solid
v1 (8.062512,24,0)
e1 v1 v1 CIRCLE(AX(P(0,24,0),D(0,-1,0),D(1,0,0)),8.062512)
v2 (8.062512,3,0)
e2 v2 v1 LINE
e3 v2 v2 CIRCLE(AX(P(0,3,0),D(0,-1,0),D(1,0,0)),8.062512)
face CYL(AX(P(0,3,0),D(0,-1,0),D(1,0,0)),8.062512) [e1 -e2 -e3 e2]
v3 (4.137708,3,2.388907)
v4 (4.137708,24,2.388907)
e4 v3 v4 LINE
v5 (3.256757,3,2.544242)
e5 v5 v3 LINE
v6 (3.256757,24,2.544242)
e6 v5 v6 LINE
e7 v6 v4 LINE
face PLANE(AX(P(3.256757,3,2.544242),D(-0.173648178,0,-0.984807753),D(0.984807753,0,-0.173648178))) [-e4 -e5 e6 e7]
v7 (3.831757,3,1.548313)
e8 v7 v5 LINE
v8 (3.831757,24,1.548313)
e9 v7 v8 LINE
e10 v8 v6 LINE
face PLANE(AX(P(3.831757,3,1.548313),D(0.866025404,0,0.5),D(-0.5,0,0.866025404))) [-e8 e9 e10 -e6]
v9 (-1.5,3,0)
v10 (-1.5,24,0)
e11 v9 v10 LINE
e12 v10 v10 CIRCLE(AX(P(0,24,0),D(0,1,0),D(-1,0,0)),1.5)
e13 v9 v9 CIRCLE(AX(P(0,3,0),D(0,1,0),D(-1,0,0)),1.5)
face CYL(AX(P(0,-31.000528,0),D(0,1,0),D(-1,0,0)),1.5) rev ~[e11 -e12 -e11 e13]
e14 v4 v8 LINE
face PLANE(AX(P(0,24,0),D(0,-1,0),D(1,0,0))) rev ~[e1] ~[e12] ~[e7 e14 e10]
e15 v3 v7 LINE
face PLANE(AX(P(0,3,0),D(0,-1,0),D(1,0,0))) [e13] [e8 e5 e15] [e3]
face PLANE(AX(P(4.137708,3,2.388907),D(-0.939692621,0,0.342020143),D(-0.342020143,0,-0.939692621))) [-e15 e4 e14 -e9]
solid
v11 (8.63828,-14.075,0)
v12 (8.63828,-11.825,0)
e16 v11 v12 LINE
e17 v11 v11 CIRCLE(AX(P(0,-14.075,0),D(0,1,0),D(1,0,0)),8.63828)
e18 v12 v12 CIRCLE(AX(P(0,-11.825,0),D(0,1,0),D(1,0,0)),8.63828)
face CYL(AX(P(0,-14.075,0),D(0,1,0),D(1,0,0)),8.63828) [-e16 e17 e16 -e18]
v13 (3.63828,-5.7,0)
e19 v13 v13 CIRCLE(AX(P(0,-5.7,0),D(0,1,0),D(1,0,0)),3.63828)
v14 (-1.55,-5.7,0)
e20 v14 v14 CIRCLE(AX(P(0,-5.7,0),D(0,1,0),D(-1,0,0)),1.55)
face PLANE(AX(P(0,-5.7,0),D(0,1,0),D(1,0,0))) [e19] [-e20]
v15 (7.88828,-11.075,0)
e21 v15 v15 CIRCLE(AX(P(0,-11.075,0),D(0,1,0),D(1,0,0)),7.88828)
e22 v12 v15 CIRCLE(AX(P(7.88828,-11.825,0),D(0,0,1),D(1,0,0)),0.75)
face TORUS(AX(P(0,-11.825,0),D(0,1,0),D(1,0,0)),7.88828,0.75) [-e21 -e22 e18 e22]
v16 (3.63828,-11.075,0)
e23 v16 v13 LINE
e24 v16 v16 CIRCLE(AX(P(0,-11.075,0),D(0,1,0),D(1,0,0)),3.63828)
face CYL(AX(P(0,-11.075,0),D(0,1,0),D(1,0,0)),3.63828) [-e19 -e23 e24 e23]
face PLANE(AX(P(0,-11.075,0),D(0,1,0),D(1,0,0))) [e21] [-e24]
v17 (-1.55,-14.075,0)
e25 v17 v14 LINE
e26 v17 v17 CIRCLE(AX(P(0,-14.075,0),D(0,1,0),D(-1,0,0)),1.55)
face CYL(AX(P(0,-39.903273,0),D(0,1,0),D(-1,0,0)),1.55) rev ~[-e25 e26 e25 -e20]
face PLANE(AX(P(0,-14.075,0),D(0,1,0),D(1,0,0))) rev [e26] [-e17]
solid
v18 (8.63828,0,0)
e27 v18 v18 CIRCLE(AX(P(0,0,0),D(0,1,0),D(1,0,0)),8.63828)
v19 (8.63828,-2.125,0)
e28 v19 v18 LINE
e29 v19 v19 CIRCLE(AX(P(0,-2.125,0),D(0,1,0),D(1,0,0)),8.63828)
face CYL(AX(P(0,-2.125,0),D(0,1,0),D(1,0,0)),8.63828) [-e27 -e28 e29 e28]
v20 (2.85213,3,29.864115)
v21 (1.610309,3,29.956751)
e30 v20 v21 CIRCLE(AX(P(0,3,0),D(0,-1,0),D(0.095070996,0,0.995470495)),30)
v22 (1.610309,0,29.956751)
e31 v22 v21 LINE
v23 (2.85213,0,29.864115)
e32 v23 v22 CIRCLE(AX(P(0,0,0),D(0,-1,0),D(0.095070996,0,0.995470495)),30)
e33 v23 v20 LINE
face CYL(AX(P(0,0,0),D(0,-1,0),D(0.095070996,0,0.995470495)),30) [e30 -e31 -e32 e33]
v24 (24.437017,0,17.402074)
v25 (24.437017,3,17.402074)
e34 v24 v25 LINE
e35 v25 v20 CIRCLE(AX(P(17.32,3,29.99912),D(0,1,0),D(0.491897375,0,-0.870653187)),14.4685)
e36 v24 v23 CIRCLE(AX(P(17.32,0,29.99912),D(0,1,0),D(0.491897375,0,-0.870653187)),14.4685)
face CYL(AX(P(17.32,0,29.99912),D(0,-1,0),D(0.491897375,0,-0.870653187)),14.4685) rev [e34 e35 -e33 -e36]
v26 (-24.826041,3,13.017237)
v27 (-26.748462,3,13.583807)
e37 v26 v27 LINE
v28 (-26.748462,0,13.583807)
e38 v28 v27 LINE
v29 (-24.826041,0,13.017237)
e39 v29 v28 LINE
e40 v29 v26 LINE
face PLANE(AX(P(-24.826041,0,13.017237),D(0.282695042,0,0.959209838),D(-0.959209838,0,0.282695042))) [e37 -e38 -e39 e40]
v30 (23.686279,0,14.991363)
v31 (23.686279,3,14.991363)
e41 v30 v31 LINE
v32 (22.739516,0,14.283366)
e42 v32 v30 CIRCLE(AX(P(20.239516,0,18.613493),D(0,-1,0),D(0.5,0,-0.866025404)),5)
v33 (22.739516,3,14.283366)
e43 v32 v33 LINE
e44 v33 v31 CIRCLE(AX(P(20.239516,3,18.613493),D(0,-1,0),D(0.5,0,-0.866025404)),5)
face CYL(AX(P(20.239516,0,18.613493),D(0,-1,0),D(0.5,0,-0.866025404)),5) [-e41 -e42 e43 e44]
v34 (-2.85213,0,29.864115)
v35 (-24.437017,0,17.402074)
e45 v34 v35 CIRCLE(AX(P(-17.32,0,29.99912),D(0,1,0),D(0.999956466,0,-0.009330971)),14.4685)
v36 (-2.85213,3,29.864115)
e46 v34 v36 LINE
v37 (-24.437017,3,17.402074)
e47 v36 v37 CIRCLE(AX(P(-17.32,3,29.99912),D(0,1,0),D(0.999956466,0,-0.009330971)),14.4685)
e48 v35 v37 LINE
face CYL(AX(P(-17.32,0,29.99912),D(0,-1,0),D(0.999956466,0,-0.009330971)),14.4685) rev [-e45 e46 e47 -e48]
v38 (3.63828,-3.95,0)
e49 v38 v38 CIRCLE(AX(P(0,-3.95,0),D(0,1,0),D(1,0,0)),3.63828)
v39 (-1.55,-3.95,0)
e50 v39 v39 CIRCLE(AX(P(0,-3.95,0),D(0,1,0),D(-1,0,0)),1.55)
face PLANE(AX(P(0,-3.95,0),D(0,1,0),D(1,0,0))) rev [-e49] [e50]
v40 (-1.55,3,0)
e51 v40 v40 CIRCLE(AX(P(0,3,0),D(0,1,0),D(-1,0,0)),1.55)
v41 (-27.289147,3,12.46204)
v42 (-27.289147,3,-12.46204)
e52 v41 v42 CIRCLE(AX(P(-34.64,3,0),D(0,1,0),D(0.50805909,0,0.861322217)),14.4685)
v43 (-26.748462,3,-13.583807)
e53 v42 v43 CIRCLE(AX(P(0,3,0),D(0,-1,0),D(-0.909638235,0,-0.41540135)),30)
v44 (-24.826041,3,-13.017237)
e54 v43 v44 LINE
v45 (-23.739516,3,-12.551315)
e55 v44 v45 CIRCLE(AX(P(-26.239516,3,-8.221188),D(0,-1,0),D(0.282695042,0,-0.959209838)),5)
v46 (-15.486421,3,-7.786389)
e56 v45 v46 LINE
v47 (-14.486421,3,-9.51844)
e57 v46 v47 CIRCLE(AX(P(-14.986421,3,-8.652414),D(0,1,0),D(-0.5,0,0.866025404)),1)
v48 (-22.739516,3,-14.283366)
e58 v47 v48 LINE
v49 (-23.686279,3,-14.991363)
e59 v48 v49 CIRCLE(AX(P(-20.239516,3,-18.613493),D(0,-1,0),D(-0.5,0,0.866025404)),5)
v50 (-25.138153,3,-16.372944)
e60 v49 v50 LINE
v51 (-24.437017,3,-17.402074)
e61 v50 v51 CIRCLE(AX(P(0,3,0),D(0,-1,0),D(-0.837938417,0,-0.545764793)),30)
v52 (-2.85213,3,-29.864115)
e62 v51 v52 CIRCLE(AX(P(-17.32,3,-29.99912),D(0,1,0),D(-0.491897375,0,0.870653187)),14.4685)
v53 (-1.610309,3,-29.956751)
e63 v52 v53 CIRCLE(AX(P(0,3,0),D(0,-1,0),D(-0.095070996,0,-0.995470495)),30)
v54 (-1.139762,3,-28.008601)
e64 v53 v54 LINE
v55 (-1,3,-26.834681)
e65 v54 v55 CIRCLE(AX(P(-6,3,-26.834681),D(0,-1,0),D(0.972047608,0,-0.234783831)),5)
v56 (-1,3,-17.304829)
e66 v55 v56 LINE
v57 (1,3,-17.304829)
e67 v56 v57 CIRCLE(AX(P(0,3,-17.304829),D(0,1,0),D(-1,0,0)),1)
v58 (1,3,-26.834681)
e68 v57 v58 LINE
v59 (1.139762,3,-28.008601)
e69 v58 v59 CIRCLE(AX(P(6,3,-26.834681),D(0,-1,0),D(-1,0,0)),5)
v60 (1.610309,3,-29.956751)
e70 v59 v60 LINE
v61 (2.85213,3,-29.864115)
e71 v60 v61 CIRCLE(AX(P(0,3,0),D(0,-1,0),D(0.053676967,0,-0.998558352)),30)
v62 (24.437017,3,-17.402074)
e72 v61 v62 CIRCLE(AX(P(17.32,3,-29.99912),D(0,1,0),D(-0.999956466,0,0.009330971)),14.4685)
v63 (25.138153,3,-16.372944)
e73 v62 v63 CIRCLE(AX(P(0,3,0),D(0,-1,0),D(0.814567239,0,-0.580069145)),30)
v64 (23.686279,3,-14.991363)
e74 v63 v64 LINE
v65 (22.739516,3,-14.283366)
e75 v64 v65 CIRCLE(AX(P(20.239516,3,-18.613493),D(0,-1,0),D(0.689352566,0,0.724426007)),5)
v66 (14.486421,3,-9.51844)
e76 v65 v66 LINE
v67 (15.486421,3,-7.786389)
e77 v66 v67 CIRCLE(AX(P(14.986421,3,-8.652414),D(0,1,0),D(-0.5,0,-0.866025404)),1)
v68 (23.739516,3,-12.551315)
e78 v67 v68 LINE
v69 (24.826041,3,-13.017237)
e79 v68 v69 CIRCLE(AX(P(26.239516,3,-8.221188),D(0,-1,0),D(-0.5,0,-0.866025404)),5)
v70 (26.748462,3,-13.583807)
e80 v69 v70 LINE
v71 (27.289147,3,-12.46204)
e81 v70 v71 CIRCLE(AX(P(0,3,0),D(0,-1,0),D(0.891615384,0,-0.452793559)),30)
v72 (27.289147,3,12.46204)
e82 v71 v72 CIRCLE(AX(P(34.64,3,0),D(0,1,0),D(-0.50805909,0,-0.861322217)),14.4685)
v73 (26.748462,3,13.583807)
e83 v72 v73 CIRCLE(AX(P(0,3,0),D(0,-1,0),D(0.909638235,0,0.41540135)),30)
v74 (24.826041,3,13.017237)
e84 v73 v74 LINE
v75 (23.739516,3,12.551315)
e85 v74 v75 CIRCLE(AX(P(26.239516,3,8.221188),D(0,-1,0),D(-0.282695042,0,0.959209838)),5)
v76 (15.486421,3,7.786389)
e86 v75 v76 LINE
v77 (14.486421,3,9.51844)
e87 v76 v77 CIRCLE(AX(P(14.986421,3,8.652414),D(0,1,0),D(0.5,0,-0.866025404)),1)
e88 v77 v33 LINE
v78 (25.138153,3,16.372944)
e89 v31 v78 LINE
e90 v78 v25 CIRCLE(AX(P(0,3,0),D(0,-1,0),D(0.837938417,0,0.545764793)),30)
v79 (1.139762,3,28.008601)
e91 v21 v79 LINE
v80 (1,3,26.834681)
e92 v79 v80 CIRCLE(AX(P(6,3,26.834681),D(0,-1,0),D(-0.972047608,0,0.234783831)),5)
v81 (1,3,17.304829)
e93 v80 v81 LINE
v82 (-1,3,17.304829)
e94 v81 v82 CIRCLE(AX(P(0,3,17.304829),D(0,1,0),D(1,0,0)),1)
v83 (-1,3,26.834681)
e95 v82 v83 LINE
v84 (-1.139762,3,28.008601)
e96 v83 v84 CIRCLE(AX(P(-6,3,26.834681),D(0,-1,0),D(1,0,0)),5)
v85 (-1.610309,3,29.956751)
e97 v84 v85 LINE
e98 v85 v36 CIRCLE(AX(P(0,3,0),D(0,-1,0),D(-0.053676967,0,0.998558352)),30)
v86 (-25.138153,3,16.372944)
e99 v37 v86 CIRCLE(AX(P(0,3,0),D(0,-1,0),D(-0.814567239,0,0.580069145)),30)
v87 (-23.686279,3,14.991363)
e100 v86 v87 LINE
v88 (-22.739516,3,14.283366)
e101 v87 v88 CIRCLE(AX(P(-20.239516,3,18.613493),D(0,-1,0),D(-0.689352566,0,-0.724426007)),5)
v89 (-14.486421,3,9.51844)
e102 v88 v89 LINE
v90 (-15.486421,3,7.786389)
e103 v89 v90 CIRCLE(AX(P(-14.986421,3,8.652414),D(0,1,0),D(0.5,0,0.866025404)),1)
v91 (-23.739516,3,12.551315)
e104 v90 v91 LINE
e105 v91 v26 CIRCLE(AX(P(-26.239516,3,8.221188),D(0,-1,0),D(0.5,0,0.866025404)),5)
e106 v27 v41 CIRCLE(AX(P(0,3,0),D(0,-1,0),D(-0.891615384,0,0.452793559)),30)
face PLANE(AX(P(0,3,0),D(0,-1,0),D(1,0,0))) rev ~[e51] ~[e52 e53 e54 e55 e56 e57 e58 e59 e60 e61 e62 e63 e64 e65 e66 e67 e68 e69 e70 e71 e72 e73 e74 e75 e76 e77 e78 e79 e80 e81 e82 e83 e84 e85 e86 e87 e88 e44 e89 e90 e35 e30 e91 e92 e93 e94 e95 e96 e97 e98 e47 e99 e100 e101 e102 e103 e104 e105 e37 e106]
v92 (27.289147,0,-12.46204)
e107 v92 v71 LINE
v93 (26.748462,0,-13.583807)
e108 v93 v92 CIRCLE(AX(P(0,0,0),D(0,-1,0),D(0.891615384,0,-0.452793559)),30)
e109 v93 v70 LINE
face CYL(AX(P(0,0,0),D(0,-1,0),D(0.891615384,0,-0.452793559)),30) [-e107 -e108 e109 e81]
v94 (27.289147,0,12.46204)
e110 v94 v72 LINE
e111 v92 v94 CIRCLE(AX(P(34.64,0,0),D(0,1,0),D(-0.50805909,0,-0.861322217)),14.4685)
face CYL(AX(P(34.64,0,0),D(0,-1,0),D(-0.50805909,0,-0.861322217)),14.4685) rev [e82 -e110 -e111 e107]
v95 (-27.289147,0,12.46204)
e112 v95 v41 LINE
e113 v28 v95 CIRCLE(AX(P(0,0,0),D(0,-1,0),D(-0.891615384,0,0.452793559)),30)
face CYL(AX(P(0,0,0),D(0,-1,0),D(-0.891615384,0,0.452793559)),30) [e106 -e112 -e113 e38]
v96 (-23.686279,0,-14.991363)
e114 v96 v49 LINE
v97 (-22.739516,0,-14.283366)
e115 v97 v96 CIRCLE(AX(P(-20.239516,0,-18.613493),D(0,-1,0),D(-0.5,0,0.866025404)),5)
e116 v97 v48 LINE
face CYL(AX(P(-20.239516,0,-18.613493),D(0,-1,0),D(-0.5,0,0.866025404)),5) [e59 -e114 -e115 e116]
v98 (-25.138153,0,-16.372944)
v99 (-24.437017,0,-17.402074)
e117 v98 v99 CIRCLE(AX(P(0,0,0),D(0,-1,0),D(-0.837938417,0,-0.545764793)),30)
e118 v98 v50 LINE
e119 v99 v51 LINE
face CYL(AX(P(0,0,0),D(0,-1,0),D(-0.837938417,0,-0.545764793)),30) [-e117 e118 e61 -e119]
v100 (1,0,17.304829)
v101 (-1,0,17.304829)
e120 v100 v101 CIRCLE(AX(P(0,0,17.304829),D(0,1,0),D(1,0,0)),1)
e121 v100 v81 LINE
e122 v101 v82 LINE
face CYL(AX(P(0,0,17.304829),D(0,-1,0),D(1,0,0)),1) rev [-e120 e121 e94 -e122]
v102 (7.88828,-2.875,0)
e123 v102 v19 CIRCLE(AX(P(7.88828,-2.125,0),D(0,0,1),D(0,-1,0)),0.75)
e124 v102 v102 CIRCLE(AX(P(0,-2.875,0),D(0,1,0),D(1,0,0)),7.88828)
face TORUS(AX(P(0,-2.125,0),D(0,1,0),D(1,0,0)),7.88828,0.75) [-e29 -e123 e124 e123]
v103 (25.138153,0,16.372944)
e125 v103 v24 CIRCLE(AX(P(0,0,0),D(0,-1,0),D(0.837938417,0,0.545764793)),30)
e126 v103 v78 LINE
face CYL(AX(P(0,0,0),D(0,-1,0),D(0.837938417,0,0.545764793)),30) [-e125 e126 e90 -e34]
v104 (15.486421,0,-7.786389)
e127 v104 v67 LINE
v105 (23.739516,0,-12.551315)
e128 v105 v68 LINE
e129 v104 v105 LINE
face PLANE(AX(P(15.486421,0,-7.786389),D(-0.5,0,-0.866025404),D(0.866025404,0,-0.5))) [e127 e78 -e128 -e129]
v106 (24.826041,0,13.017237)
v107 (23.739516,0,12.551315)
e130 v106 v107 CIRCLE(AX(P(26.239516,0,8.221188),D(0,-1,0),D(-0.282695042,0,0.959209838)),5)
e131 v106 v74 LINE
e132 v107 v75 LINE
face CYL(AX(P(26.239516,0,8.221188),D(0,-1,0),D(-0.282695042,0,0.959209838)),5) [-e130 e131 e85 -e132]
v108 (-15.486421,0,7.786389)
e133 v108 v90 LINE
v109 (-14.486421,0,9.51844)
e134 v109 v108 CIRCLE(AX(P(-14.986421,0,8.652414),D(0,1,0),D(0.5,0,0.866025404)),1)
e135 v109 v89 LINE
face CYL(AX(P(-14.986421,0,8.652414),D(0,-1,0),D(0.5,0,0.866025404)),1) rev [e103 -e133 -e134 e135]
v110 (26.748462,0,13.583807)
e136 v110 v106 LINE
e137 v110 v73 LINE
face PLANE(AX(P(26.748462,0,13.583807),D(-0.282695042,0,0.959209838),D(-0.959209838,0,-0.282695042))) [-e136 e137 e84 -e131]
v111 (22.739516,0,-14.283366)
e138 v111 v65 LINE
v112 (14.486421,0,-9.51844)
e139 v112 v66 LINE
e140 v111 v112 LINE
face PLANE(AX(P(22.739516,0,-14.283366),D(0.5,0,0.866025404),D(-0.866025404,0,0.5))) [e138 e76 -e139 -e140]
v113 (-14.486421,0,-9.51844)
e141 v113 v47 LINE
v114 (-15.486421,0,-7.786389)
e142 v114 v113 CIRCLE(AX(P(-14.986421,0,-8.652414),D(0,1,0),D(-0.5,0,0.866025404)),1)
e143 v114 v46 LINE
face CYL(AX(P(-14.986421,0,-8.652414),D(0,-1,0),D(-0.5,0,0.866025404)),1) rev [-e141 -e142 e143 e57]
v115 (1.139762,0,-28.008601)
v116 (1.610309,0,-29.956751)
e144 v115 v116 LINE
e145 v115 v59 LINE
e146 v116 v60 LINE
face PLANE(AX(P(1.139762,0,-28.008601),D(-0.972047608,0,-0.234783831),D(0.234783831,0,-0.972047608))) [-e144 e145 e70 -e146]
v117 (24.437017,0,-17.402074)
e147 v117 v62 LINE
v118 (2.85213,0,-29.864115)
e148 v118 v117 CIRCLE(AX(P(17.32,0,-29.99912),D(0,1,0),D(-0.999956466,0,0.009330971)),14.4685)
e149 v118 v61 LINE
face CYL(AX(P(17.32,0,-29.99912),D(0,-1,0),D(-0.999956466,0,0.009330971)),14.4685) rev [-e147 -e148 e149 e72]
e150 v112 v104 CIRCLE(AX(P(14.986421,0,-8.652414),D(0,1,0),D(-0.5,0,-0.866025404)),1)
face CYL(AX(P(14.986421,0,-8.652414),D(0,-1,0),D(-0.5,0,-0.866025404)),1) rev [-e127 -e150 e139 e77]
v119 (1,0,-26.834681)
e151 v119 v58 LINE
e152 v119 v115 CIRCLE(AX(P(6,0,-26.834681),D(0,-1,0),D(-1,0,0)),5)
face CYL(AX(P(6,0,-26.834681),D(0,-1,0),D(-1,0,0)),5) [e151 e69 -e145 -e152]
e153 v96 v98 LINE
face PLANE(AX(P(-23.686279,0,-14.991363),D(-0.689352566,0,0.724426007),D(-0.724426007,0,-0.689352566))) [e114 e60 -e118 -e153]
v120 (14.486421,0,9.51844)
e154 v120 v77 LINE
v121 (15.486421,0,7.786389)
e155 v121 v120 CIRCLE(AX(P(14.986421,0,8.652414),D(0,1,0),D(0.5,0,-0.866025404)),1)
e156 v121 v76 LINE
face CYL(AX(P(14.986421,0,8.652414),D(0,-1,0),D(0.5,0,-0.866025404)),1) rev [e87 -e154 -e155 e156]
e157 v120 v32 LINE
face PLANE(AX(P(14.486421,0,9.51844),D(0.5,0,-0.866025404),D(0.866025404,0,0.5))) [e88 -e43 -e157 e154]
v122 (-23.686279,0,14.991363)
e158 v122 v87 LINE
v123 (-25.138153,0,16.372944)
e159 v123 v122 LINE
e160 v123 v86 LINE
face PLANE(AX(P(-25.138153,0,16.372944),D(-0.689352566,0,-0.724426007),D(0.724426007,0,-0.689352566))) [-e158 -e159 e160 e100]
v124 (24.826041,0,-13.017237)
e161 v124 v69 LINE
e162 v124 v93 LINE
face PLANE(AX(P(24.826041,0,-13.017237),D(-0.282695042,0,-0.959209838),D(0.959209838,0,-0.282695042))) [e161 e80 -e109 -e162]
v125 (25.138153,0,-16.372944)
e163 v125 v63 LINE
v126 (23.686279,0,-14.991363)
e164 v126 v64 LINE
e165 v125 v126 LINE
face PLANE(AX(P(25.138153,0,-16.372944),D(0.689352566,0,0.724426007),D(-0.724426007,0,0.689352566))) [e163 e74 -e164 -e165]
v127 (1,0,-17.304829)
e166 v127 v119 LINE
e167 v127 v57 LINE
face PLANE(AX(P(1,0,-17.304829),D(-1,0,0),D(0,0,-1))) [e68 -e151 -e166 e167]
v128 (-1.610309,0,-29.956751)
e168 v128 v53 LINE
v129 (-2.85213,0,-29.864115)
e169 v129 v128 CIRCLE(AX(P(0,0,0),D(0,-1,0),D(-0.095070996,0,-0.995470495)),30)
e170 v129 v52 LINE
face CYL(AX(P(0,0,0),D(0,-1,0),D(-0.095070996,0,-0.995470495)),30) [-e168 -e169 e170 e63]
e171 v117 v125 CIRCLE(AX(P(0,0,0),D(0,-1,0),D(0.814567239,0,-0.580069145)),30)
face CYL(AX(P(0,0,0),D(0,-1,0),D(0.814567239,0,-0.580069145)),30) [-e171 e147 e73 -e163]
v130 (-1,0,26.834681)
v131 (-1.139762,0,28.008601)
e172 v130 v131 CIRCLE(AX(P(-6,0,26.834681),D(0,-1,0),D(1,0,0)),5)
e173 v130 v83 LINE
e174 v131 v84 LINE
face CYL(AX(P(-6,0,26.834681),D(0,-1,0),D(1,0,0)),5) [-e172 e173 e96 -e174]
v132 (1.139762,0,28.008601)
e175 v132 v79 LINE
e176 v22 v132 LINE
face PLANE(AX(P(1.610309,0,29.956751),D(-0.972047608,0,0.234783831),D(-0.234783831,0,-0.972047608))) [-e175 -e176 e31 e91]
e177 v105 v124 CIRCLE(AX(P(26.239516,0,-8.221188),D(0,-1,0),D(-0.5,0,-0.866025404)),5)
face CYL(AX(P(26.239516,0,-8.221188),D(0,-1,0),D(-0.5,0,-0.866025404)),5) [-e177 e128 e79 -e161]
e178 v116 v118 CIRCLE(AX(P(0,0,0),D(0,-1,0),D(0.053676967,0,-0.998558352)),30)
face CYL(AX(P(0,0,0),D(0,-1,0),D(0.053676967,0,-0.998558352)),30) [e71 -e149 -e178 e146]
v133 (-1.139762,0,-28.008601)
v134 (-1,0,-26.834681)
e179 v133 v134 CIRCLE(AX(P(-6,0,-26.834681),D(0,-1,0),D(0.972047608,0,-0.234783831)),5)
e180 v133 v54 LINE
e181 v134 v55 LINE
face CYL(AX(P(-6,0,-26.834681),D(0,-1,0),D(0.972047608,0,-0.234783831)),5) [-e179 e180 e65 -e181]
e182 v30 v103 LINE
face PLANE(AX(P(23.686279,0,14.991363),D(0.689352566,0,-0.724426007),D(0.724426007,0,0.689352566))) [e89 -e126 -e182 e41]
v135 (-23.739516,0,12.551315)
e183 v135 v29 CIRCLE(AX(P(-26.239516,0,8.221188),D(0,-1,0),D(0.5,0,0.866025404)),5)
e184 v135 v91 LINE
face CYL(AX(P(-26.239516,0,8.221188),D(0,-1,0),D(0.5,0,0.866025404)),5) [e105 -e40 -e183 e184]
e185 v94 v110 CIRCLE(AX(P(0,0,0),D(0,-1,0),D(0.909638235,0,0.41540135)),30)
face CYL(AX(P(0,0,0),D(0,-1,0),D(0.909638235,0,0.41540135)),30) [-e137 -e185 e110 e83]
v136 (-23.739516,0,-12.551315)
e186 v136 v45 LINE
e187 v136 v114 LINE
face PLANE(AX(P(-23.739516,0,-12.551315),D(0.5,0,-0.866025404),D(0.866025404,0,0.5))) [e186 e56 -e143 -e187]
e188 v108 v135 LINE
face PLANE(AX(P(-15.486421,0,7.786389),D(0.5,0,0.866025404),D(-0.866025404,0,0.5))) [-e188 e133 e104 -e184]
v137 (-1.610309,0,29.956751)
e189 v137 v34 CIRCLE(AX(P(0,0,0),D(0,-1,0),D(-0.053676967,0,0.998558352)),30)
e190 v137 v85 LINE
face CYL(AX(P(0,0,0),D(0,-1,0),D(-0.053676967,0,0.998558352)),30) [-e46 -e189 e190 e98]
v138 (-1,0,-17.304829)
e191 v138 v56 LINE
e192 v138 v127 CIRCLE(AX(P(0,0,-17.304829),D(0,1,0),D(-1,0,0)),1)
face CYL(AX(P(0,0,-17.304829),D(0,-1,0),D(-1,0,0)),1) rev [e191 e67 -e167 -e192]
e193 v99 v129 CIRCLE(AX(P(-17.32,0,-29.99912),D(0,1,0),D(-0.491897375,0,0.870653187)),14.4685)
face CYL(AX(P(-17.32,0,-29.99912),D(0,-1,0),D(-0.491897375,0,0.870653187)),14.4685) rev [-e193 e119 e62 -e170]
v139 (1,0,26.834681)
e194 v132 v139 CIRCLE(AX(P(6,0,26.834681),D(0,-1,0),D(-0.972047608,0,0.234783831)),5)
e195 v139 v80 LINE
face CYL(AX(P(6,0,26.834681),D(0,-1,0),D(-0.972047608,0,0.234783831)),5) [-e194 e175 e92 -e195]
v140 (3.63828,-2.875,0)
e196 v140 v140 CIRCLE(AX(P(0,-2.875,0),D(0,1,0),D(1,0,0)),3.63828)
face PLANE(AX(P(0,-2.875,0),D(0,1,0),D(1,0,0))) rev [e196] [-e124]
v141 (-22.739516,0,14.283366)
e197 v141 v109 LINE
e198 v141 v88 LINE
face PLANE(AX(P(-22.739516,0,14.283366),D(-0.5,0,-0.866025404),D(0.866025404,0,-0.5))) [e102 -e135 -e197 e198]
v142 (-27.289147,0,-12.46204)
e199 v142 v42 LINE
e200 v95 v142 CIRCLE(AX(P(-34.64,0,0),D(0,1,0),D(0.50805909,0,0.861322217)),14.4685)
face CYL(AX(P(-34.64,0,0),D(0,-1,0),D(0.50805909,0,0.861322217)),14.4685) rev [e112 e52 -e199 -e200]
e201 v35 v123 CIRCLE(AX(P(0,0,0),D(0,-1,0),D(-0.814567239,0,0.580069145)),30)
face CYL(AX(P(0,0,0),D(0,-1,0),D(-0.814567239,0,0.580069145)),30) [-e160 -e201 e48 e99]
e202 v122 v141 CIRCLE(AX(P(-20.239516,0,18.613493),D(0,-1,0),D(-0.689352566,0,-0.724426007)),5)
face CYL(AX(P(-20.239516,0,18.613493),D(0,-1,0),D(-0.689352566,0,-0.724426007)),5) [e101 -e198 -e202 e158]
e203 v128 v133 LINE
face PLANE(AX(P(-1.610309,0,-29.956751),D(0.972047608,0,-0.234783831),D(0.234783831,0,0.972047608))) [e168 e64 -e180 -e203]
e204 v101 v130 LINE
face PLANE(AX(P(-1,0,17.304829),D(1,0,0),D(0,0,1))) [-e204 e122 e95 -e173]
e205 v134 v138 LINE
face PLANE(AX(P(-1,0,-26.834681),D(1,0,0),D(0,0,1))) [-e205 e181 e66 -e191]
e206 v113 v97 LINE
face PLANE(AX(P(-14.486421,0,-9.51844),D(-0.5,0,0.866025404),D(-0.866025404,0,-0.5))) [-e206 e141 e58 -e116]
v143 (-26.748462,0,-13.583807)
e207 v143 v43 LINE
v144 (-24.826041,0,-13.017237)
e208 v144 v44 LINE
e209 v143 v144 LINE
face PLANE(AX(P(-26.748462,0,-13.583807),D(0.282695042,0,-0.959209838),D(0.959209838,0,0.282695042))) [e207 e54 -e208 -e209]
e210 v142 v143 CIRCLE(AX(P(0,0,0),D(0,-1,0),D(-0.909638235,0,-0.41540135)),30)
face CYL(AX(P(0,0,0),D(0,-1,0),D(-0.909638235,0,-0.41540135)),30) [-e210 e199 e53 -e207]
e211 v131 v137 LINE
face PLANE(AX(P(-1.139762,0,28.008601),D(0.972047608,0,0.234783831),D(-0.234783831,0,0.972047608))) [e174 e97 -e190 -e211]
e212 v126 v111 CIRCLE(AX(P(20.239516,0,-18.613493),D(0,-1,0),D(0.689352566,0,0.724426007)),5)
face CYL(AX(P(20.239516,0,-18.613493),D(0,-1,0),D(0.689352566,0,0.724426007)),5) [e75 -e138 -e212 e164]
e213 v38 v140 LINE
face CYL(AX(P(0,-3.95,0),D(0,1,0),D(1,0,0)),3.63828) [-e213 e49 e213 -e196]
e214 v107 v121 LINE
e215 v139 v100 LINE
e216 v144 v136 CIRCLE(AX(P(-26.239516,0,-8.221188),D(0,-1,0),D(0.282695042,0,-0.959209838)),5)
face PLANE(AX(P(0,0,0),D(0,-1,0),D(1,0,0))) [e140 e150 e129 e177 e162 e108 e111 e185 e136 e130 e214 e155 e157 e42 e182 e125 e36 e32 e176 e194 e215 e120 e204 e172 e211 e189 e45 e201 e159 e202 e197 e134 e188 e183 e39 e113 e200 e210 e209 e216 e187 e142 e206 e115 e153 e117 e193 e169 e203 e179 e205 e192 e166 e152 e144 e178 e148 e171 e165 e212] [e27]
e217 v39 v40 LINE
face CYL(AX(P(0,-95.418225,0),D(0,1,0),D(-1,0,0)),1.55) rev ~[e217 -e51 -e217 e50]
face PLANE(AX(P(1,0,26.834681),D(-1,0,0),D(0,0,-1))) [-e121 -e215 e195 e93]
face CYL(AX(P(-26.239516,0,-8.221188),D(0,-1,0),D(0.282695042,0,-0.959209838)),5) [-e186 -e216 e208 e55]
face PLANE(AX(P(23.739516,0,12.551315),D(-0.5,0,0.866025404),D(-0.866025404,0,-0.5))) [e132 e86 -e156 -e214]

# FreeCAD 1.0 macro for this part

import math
import FreeCAD as App
import Part
import Sketcher
from FreeCAD import Vector
Q = App.Units.Quantity


def add_polygon(sketch, points):
    """Adds a closed chain of lines whose ends are joined by coincident constraints."""
    first, n = sketch.GeometryCount, len(points)
    for a, b in zip(points, points[1:] + points[:1]):
        sketch.addGeometry(Part.LineSegment(App.Vector(*a, 0), App.Vector(*b, 0)), False)
    for i in range(n):
        sketch.addConstraint(Sketcher.Constraint("Coincident", first + i, 2, first + (i + 1) % n, 1))

doc = App.newDocument("Part")
body = doc.addObject("PartDesign::Body", "Body")

sketch1 = body.newObject("Sketcher::SketchObject", "Sketch")
sketch1.AttachmentSupport = (doc.getObject("XY_Plane"), [""])
sketch1.MapMode = "FlatFace"
sketch1.addGeometry([
    Part.LineSegment(Vector(3.63828, -3.95, 0), Vector(3.63828, -2.875, 0)),
    Part.LineSegment(Vector(3.63828, -2.875, 0), Vector(7.88828, -2.875, 0)),
    Part.ArcOfCircle(Part.Circle(Vector(7.88828, -2.125, 0), Vector(0, 0, 1), 0.75), math.radians(-90), math.radians(0)),
    Part.LineSegment(Vector(8.63828, -2.125, 0), Vector(8.63828, 0.125, 0)),
    Part.LineSegment(Vector(8.63828, 0.125, 0), Vector(0, 0.125, 0)),
    Part.LineSegment(Vector(0, 0.125, 0), Vector(0, -3.95, 0)),
    Part.LineSegment(Vector(0, -3.95, 0), Vector(3.63828, -3.95, 0)),
], False)
sketch1.addConstraint([
    Sketcher.Constraint("Coincident", 0, 2, 1, 1),
    Sketcher.Constraint("Tangent", 1, 2, 2, 1),
    Sketcher.Constraint("Tangent", 2, 2, 3, 1),
    Sketcher.Constraint("Coincident", 3, 2, 4, 1),
    Sketcher.Constraint("Coincident", 4, 2, 5, 1),
    Sketcher.Constraint("Coincident", 5, 2, 6, 1),
    Sketcher.Constraint("Coincident", 6, 2, 0, 1),
    Sketcher.Constraint("Vertical", 0),
    Sketcher.Constraint("Horizontal", 1),
    Sketcher.Constraint("Vertical", 3),
    Sketcher.Constraint("Horizontal", 4),
    Sketcher.Constraint("Vertical", 5),
    Sketcher.Constraint("Horizontal", 6),
    Sketcher.Constraint("PointOnObject", 4, 2, -2),
    Sketcher.Constraint("Radius", 2, Q("0.75 mm")),
    Sketcher.Constraint("DistanceX", 0, 2, 2, 2, Q("5 mm")),
    Sketcher.Constraint("DistanceY", 1, 2, 3, 2, Q("3 mm")),
    Sketcher.Constraint("DistanceY", 0, 1, 0, 2, Q("1.075 mm")),
    Sketcher.Constraint("DistanceY", 5, 2, -1, 1, Q("3.95 mm")),
    Sketcher.Constraint("DistanceX", 4, 2, 4, 1, Q("8.63828 mm")),
])
revolution = body.newObject("PartDesign::Revolution", "Revolution")
revolution.Profile = sketch1
revolution.ReferenceAxis = (sketch1, ["V_Axis"])
revolution.Angle = 360

sketch2 = body.newObject("Sketcher::SketchObject", "Sketch001")
sketch2.AttachmentSupport = (doc.getObject("XZ_Plane"), [""])
sketch2.MapMode = "FlatFace"
sketch2.addGeometry([
    Part.ArcOfCircle(Part.Circle(Vector(34.64, 0, 0), Vector(0, 0, 1), 14.4685), math.radians(120.534633), math.radians(239.465367)),
    Part.ArcOfCircle(Part.Circle(Vector(0, 0, 0), Vector(0, 0, 1), 30), math.radians(24.544594), math.radians(26.923058)),
    Part.LineSegment(Vector(26.748462, 13.583807, 0), Vector(24.826041, 13.017237, 0)),
    Part.ArcOfCircle(Part.Circle(Vector(26.239516, 8.221188, 0), Vector(0, 0, 1), 5), math.radians(106.421119), math.radians(120)),
    Part.LineSegment(Vector(23.739516, 12.551315, 0), Vector(15.486421, 7.786389, 0)),
    Part.ArcOfCircle(Part.Circle(Vector(14.986421, 8.652414, 0), Vector(0, 0, 1), 1), math.radians(120), math.radians(300)),
    Part.LineSegment(Vector(14.486421, 9.51844, 0), Vector(22.739516, 14.283366, 0)),
    Part.ArcOfCircle(Part.Circle(Vector(20.239516, 18.613493, 0), Vector(0, 0, 1), 5), math.radians(-60), math.radians(-46.421119)),
    Part.LineSegment(Vector(23.686279, 14.991363, 0), Vector(25.138153, 16.372944, 0)),
    Part.ArcOfCircle(Part.Circle(Vector(0, 0, 0), Vector(0, 0, 1), 30), math.radians(33.076942), math.radians(35.455406)),
    Part.ArcOfCircle(Part.Circle(Vector(17.32, 29.99912, 0), Vector(0, 0, 1), 14.4685), math.radians(-179.465367), math.radians(-60.534633)),
    Part.ArcOfCircle(Part.Circle(Vector(0, 0, 0), Vector(0, 0, 1), 30), math.radians(84.544594), math.radians(86.923058)),
    Part.LineSegment(Vector(1.610309, 29.956751, 0), Vector(1.139762, 28.008601, 0)),
    Part.ArcOfCircle(Part.Circle(Vector(6, 26.834681, 0), Vector(0, 0, 1), 5), math.radians(166.421119), math.radians(180)),
    Part.LineSegment(Vector(1, 26.834681, 0), Vector(1, 17.304829, 0)),
    Part.ArcOfCircle(Part.Circle(Vector(0, 17.304829, 0), Vector(0, 0, 1), 1), math.radians(180), math.radians(360)),
    Part.LineSegment(Vector(-1, 17.304829, 0), Vector(-1, 26.834681, 0)),
    Part.ArcOfCircle(Part.Circle(Vector(-6, 26.834681, 0), Vector(0, 0, 1), 5), math.radians(0), math.radians(13.578881)),
    Part.LineSegment(Vector(-1.139762, 28.008601, 0), Vector(-1.610309, 29.956751, 0)),
    Part.ArcOfCircle(Part.Circle(Vector(0, 0, 0), Vector(0, 0, 1), 30), math.radians(93.076942), math.radians(95.455406)),
    Part.ArcOfCircle(Part.Circle(Vector(-17.32, 29.99912, 0), Vector(0, 0, 1), 14.4685), math.radians(-119.465367), math.radians(-0.534633)),
    Part.ArcOfCircle(Part.Circle(Vector(0, 0, 0), Vector(0, 0, 1), 30), math.radians(144.544594), math.radians(146.923058)),
    Part.LineSegment(Vector(-25.138153, 16.372944, 0), Vector(-23.686279, 14.991363, 0)),
    Part.ArcOfCircle(Part.Circle(Vector(-20.239516, 18.613493, 0), Vector(0, 0, 1), 5), math.radians(-133.578881), math.radians(-120)),
    Part.LineSegment(Vector(-22.739516, 14.283366, 0), Vector(-14.486421, 9.51844, 0)),
    Part.ArcOfCircle(Part.Circle(Vector(-14.986421, 8.652414, 0), Vector(0, 0, 1), 1), math.radians(-120), math.radians(60)),
    Part.LineSegment(Vector(-15.486421, 7.786389, 0), Vector(-23.739516, 12.551315, 0)),
    Part.ArcOfCircle(Part.Circle(Vector(-26.239516, 8.221188, 0), Vector(0, 0, 1), 5), math.radians(60), math.radians(73.578881)),
    Part.LineSegment(Vector(-24.826041, 13.017237, 0), Vector(-26.748462, 13.583807, 0)),
    Part.ArcOfCircle(Part.Circle(Vector(0, 0, 0), Vector(0, 0, 1), 30), math.radians(153.076942), math.radians(155.455406)),
    Part.ArcOfCircle(Part.Circle(Vector(-34.64, 0, 0), Vector(0, 0, 1), 14.4685), math.radians(-59.465367), math.radians(59.465367)),
    Part.ArcOfCircle(Part.Circle(Vector(0, 0, 0), Vector(0, 0, 1), 30), math.radians(-155.455406), math.radians(-153.076942)),
    Part.LineSegment(Vector(-26.748462, -13.583807, 0), Vector(-24.826041, -13.017237, 0)),
    Part.ArcOfCircle(Part.Circle(Vector(-26.239516, -8.221188, 0), Vector(0, 0, 1), 5), math.radians(-73.578881), math.radians(-60)),
    Part.LineSegment(Vector(-23.739516, -12.551315, 0), Vector(-15.486421, -7.786389, 0)),
    Part.ArcOfCircle(Part.Circle(Vector(-14.986421, -8.652414, 0), Vector(0, 0, 1), 1), math.radians(-60), math.radians(120)),
    Part.LineSegment(Vector(-14.486421, -9.51844, 0), Vector(-22.739516, -14.283366, 0)),
    Part.ArcOfCircle(Part.Circle(Vector(-20.239516, -18.613493, 0), Vector(0, 0, 1), 5), math.radians(120), math.radians(133.578881)),
    Part.LineSegment(Vector(-23.686279, -14.991363, 0), Vector(-25.138153, -16.372944, 0)),
    Part.ArcOfCircle(Part.Circle(Vector(0, 0, 0), Vector(0, 0, 1), 30), math.radians(-146.923058), math.radians(-144.544594)),
    Part.ArcOfCircle(Part.Circle(Vector(-17.32, -29.99912, 0), Vector(0, 0, 1), 14.4685), math.radians(0.534633), math.radians(119.465367)),
    Part.ArcOfCircle(Part.Circle(Vector(0, 0, 0), Vector(0, 0, 1), 30), math.radians(-95.455406), math.radians(-93.076942)),
    Part.LineSegment(Vector(-1.610309, -29.956751, 0), Vector(-1.139762, -28.008601, 0)),
    Part.ArcOfCircle(Part.Circle(Vector(-6, -26.834681, 0), Vector(0, 0, 1), 5), math.radians(-13.578881), math.radians(0)),
    Part.LineSegment(Vector(-1, -26.834681, 0), Vector(-1, -17.304829, 0)),
    Part.ArcOfCircle(Part.Circle(Vector(0, -17.304829, 0), Vector(0, 0, 1), 1), math.radians(0), math.radians(180)),
    Part.LineSegment(Vector(1, -17.304829, 0), Vector(1, -26.834681, 0)),
    Part.ArcOfCircle(Part.Circle(Vector(6, -26.834681, 0), Vector(0, 0, 1), 5), math.radians(180), math.radians(193.578881)),
    Part.LineSegment(Vector(1.139762, -28.008601, 0), Vector(1.610309, -29.956751, 0)),
    Part.ArcOfCircle(Part.Circle(Vector(0, 0, 0), Vector(0, 0, 1), 30), math.radians(-86.923058), math.radians(-84.544594)),
    Part.ArcOfCircle(Part.Circle(Vector(17.32, -29.99912, 0), Vector(0, 0, 1), 14.4685), math.radians(60.534633), math.radians(179.465367)),
    Part.ArcOfCircle(Part.Circle(Vector(0, 0, 0), Vector(0, 0, 1), 30), math.radians(-35.455406), math.radians(-33.076942)),
    Part.LineSegment(Vector(25.138153, -16.372944, 0), Vector(23.686279, -14.991363, 0)),
    Part.ArcOfCircle(Part.Circle(Vector(20.239516, -18.613493, 0), Vector(0, 0, 1), 5), math.radians(46.421119), math.radians(60)),
    Part.LineSegment(Vector(22.739516, -14.283366, 0), Vector(14.486421, -9.51844, 0)),
    Part.ArcOfCircle(Part.Circle(Vector(14.986421, -8.652414, 0), Vector(0, 0, 1), 1), math.radians(60), math.radians(240)),
    Part.LineSegment(Vector(15.486421, -7.786389, 0), Vector(23.739516, -12.551315, 0)),
    Part.ArcOfCircle(Part.Circle(Vector(26.239516, -8.221188, 0), Vector(0, 0, 1), 5), math.radians(-120), math.radians(-106.421119)),
    Part.LineSegment(Vector(24.826041, -13.017237, 0), Vector(26.748462, -13.583807, 0)),
    Part.ArcOfCircle(Part.Circle(Vector(0, 0, 0), Vector(0, 0, 1), 30), math.radians(-26.923058), math.radians(-24.544594)),
], False)
sketch2.addConstraint([
    Sketcher.Constraint("Coincident", 0, 1, 1, 1),
    Sketcher.Constraint("Coincident", 1, 2, 2, 1),
    Sketcher.Constraint("Tangent", 2, 2, 3, 1),
    Sketcher.Constraint("Tangent", 3, 2, 4, 1),
    Sketcher.Constraint("Tangent", 4, 2, 5, 2),
    Sketcher.Constraint("Tangent", 5, 1, 6, 1),
    Sketcher.Constraint("Tangent", 6, 2, 7, 1),
    Sketcher.Constraint("Tangent", 7, 2, 8, 1),
    Sketcher.Constraint("Coincident", 8, 2, 9, 1),
    Sketcher.Constraint("Coincident", 9, 2, 10, 2),
    Sketcher.Constraint("Coincident", 10, 1, 11, 1),
    Sketcher.Constraint("Coincident", 11, 2, 12, 1),
    Sketcher.Constraint("Tangent", 12, 2, 13, 1),
    Sketcher.Constraint("Tangent", 13, 2, 14, 1),
    Sketcher.Constraint("Tangent", 14, 2, 15, 2),
    Sketcher.Constraint("Tangent", 15, 1, 16, 1),
    Sketcher.Constraint("Tangent", 16, 2, 17, 1),
    Sketcher.Constraint("Tangent", 17, 2, 18, 1),
    Sketcher.Constraint("Coincident", 18, 2, 19, 1),
    Sketcher.Constraint("Coincident", 19, 2, 20, 2),
    Sketcher.Constraint("Coincident", 20, 1, 21, 1),
    Sketcher.Constraint("Coincident", 21, 2, 22, 1),
    Sketcher.Constraint("Tangent", 22, 2, 23, 1),
    Sketcher.Constraint("Tangent", 23, 2, 24, 1),
    Sketcher.Constraint("Tangent", 24, 2, 25, 2),
    Sketcher.Constraint("Tangent", 25, 1, 26, 1),
    Sketcher.Constraint("Tangent", 26, 2, 27, 1),
    Sketcher.Constraint("Tangent", 27, 2, 28, 1),
    Sketcher.Constraint("Coincident", 28, 2, 29, 1),
    Sketcher.Constraint("Coincident", 29, 2, 30, 2),
    Sketcher.Constraint("Coincident", 30, 1, 31, 1),
    Sketcher.Constraint("Coincident", 31, 2, 32, 1),
    Sketcher.Constraint("Tangent", 32, 2, 33, 1),
    Sketcher.Constraint("Tangent", 33, 2, 34, 1),
    Sketcher.Constraint("Tangent", 34, 2, 35, 2),
    Sketcher.Constraint("Tangent", 35, 1, 36, 1),
    Sketcher.Constraint("Tangent", 36, 2, 37, 1),
    Sketcher.Constraint("Tangent", 37, 2, 38, 1),
    Sketcher.Constraint("Coincident", 38, 2, 39, 1),
    Sketcher.Constraint("Coincident", 39, 2, 40, 2),
    Sketcher.Constraint("Coincident", 40, 1, 41, 1),
    Sketcher.Constraint("Coincident", 41, 2, 42, 1),
    Sketcher.Constraint("Tangent", 42, 2, 43, 1),
    Sketcher.Constraint("Tangent", 43, 2, 44, 1),
    Sketcher.Constraint("Tangent", 44, 2, 45, 2),
    Sketcher.Constraint("Tangent", 45, 1, 46, 1),
    Sketcher.Constraint("Tangent", 46, 2, 47, 1),
    Sketcher.Constraint("Tangent", 47, 2, 48, 1),
    Sketcher.Constraint("Coincident", 48, 2, 49, 1),
    Sketcher.Constraint("Coincident", 49, 2, 50, 2),
    Sketcher.Constraint("Coincident", 50, 1, 51, 1),
    Sketcher.Constraint("Coincident", 51, 2, 52, 1),
    Sketcher.Constraint("Tangent", 52, 2, 53, 1),
    Sketcher.Constraint("Tangent", 53, 2, 54, 1),
    Sketcher.Constraint("Tangent", 54, 2, 55, 2),
    Sketcher.Constraint("Tangent", 55, 1, 56, 1),
    Sketcher.Constraint("Tangent", 56, 2, 57, 1),
    Sketcher.Constraint("Tangent", 57, 2, 58, 1),
    Sketcher.Constraint("Coincident", 58, 2, 59, 1),
    Sketcher.Constraint("Coincident", 59, 2, 0, 2),
    Sketcher.Constraint("Vertical", 14),
    Sketcher.Constraint("Vertical", 16),
    Sketcher.Constraint("Vertical", 44),
    Sketcher.Constraint("Vertical", 46),
    Sketcher.Constraint("Coincident", 1, 3, -1, 1),
    Sketcher.Constraint("Coincident", 9, 3, -1, 1),
    Sketcher.Constraint("Coincident", 11, 3, -1, 1),
    Sketcher.Constraint("Coincident", 19, 3, -1, 1),
    Sketcher.Constraint("Coincident", 21, 3, -1, 1),
    Sketcher.Constraint("Coincident", 29, 3, -1, 1),
    Sketcher.Constraint("Coincident", 31, 3, -1, 1),
    Sketcher.Constraint("Coincident", 39, 3, -1, 1),
    Sketcher.Constraint("Coincident", 41, 3, -1, 1),
    Sketcher.Constraint("Coincident", 49, 3, -1, 1),
    Sketcher.Constraint("Coincident", 51, 3, -1, 1),
    Sketcher.Constraint("Coincident", 59, 3, -1, 1),
    Sketcher.Constraint("Equal", 3, 7),
    Sketcher.Constraint("Equal", 1, 9),
    Sketcher.Constraint("Equal", 0, 10),
    Sketcher.Constraint("Equal", 9, 11),
    Sketcher.Constraint("Equal", 7, 13),
    Sketcher.Constraint("Equal", 5, 15),
    Sketcher.Constraint("Equal", 13, 17),
    Sketcher.Constraint("Equal", 11, 19),
    Sketcher.Constraint("Equal", 10, 20),
    Sketcher.Constraint("Equal", 19, 21),
    Sketcher.Constraint("Equal", 17, 23),
    Sketcher.Constraint("Equal", 15, 25),
    Sketcher.Constraint("Equal", 23, 27),
    Sketcher.Constraint("Equal", 21, 29),
    Sketcher.Constraint("Equal", 20, 30),
    Sketcher.Constraint("Equal", 29, 31),
    Sketcher.Constraint("Equal", 27, 33),
    Sketcher.Constraint("Equal", 25, 35),
    Sketcher.Constraint("Equal", 33, 37),
    Sketcher.Constraint("Equal", 31, 39),
    Sketcher.Constraint("Equal", 30, 40),
    Sketcher.Constraint("Equal", 39, 41),
    Sketcher.Constraint("Equal", 37, 43),
    Sketcher.Constraint("Equal", 35, 45),
    Sketcher.Constraint("Equal", 43, 47),
    Sketcher.Constraint("Equal", 41, 49),
    Sketcher.Constraint("Equal", 40, 50),
    Sketcher.Constraint("Equal", 49, 51),
    Sketcher.Constraint("Equal", 47, 53),
    Sketcher.Constraint("Equal", 45, 55),
    Sketcher.Constraint("Equal", 53, 57),
    Sketcher.Constraint("Equal", 51, 59),
    Sketcher.Constraint("Symmetric", 0, 3, 30, 3, -1, 1),
    Sketcher.Constraint("Symmetric", 3, 3, 33, 3, -1, 1),
    Sketcher.Constraint("Symmetric", 5, 3, 35, 3, -1, 1),
    Sketcher.Constraint("Symmetric", 7, 3, 37, 3, -1, 1),
    Sketcher.Constraint("Symmetric", 10, 3, 40, 3, -1, 1),
    Sketcher.Constraint("Symmetric", 13, 3, 43, 3, -1, 1),
    Sketcher.Constraint("Symmetric", 20, 3, 50, 3, -1, 1),
    Sketcher.Constraint("Symmetric", 23, 3, 53, 3, -1, 1),
    Sketcher.Constraint("Symmetric", 25, 3, 55, 3, -1, 1),
    Sketcher.Constraint("Symmetric", 27, 3, 57, 3, -1, 1),
    Sketcher.Constraint("Symmetric", 17, 2, 47, 2, -1, 1),
    Sketcher.Constraint("Symmetric", 13, 3, 17, 3, -2),
    Sketcher.Constraint("Symmetric", 10, 3, 20, 3, -2),
    Sketcher.Constraint("Symmetric", 7, 3, 23, 3, -2),
    Sketcher.Constraint("Symmetric", 5, 3, 25, 3, -2),
    Sketcher.Constraint("Symmetric", 3, 3, 27, 3, -2),
    Sketcher.Constraint("PointOnObject", 0, 3, -1),
    Sketcher.Constraint("Parallel", 4, 6),
    Sketcher.Constraint("Parallel", 2, 32),
    Sketcher.Constraint("Parallel", 8, 38),
    Sketcher.Constraint("Parallel", 12, 42),
    Sketcher.Constraint("Parallel", 22, 52),
    Sketcher.Constraint("Parallel", 28, 58),
    Sketcher.Constraint("Horizontal", 12, 2, 17, 2),
    Sketcher.Constraint("Horizontal", 8, 2, 21, 2),
    Sketcher.Constraint("Horizontal", 2, 2, 27, 2),
    Sketcher.Constraint("Equal", 16, 44),
    Sketcher.Constraint("Equal", 4, 6),
    Sketcher.Constraint("Equal", 2, 8),
    Sketcher.Constraint("Equal", 8, 12),
    Sketcher.Constraint("Radius", 1, Q("30 mm")),
    Sketcher.Constraint("Radius", 3, Q("5 mm")),
    Sketcher.Constraint("Radius", 5, Q("1 mm")),
    Sketcher.Constraint("Angle", 4, Q("-150 deg")),
    Sketcher.Constraint("Radius", 0, Q("14.4685 mm")),
    Sketcher.Constraint("DistanceX", -1, 1, 0, 3, Q("34.64 mm")),
    Sketcher.Constraint("DistanceX", -1, 1, 10, 3, Q("17.32 mm")),
    Sketcher.Constraint("DistanceY", -1, 1, 12, 2, Q("28.008601 mm")),
    Sketcher.Constraint("Distance", 2, Q("2.004171 mm")),
    Sketcher.Constraint("DistanceY", 14, 2, 14, 1, Q("9.529853 mm")),
    Sketcher.Constraint("DistanceY", -1, 1, 3, 3, Q("8.221188 mm")),
    Sketcher.Constraint("DistanceX", -1, 1, 5, 3, Q("14.986421 mm")),
    Sketcher.Constraint("DistanceY", -1, 1, 10, 3, Q("29.99912 mm")),
    Sketcher.Constraint("DistanceX", -1, 1, 2, 2, Q("24.826041 mm")),
])
pad1 = body.newObject("PartDesign::Pad", "Pad")
pad1.Profile = sketch2
pad1.Length = 3
pad1.Reversed = True

sketch3 = body.newObject("Sketcher::SketchObject", "Sketch002")
sketch3.AttachmentSupport = (doc.getObject("XZ_Plane"), [""])
sketch3.MapMode = "FlatFace"
sketch3.AttachmentOffset = App.Placement(Vector(0, 0, 14.075), App.Rotation())
sketch3.addGeometry(Part.Circle(Vector(0, 0, 0), Vector(0, 0, 1), 1.55), False)
sketch3.addConstraint([
    Sketcher.Constraint("Coincident", 0, 3, -1, 1),
    Sketcher.Constraint("Diameter", 0, Q("3.1 mm")),
])
doc.recompute()
hole = body.newObject("PartDesign::Hole", "Hole")
hole.Profile = sketch3
hole.ThreadType = "None"
hole.Diameter = 3.1
hole.DepthType = "ThroughAll"
body2 = doc.addObject("PartDesign::Body", "Body001")

sketch4 = body2.newObject("Sketcher::SketchObject", "Sketch003")
sketch4.AttachmentSupport = (doc.getObject("XY_Plane001"), [""])
sketch4.MapMode = "FlatFace"
sketch4.addGeometry([
    Part.LineSegment(Vector(7.88828, -11.075, 0), Vector(3.63828, -11.075, 0)),
    Part.LineSegment(Vector(3.63828, -11.075, 0), Vector(3.63828, -5.7, 0)),
    Part.LineSegment(Vector(3.63828, -5.7, 0), Vector(0, -5.7, 0)),
    Part.LineSegment(Vector(0, -5.7, 0), Vector(0, -14.075, 0)),
    Part.LineSegment(Vector(0, -14.075, 0), Vector(8.63828, -14.075, 0)),
    Part.LineSegment(Vector(8.63828, -14.075, 0), Vector(8.63828, -11.825, 0)),
    Part.ArcOfCircle(Part.Circle(Vector(7.88828, -11.825, 0), Vector(0, 0, 1), 0.75), math.radians(0), math.radians(90)),
], False)
sketch4.addConstraint([
    Sketcher.Constraint("Coincident", 0, 2, 1, 1),
    Sketcher.Constraint("Coincident", 1, 2, 2, 1),
    Sketcher.Constraint("Coincident", 2, 2, 3, 1),
    Sketcher.Constraint("Coincident", 3, 2, 4, 1),
    Sketcher.Constraint("Coincident", 4, 2, 5, 1),
    Sketcher.Constraint("Tangent", 5, 2, 6, 1),
    Sketcher.Constraint("Tangent", 6, 2, 0, 1),
    Sketcher.Constraint("Horizontal", 0),
    Sketcher.Constraint("Vertical", 1),
    Sketcher.Constraint("Horizontal", 2),
    Sketcher.Constraint("Vertical", 3),
    Sketcher.Constraint("Horizontal", 4),
    Sketcher.Constraint("Vertical", 5),
    Sketcher.Constraint("PointOnObject", 2, 2, -2),
    Sketcher.Constraint("Radius", 6, Q("0.75 mm")),
    Sketcher.Constraint("DistanceY", 3, 2, 0, 2, Q("3 mm")),
    Sketcher.Constraint("DistanceX", 0, 2, 4, 2, Q("5 mm")),
    Sketcher.Constraint("DistanceY", 1, 2, -1, 1, Q("5.7 mm")),
    Sketcher.Constraint("DistanceY", 1, 1, 1, 2, Q("5.375 mm")),
    Sketcher.Constraint("DistanceX", 2, 2, 2, 1, Q("3.63828 mm")),
])
revolution2 = body2.newObject("PartDesign::Revolution", "Revolution001")
revolution2.Profile = sketch4
revolution2.ReferenceAxis = (sketch4, ["V_Axis"])
revolution2.Angle = 360

sketch5 = body2.newObject("Sketcher::SketchObject", "Sketch004")
sketch5.AttachmentSupport = (doc.getObject("XZ_Plane001"), [""])
sketch5.MapMode = "FlatFace"
sketch5.AttachmentOffset = App.Placement(Vector(0, 0, 14.075), App.Rotation())
sketch5.addGeometry(Part.Circle(Vector(0, 0, 0), Vector(0, 0, 1), 1.55), False)
sketch5.addConstraint([
    Sketcher.Constraint("Coincident", 0, 3, -1, 1),
    Sketcher.Constraint("Diameter", 0, Q("3.1 mm")),
])
doc.recompute()
hole2 = body2.newObject("PartDesign::Hole", "Hole001")
hole2.Profile = sketch5
hole2.ThreadType = "None"
hole2.Diameter = 3.1
hole2.DepthType = "ThroughAll"
body3 = doc.addObject("PartDesign::Body", "Body002")

sketch6 = body3.newObject("Sketcher::SketchObject", "Sketch005")
sketch6.AttachmentSupport = (doc.getObject("XZ_Plane002"), [""])
sketch6.MapMode = "FlatFace"
sketch6.AttachmentOffset = App.Placement(Vector(0, 0, -3), App.Rotation())
sketch6.addGeometry(Part.Circle(Vector(0, 0, 0), Vector(0, 0, 1), 8.062512), False)
add_polygon(sketch6, [(3.256757, 2.544242), (4.137708, 2.388907), (3.831757, 1.548313)])
sketch6.addConstraint([
    Sketcher.Constraint("Coincident", 0, 3, -1, 1),
    Sketcher.Constraint("Equal", 1, 2),
    Sketcher.Constraint("Angle", 1, Q("-10 deg")),
    Sketcher.Constraint("Angle", 2, Q("-110 deg")),
    Sketcher.Constraint("Distance", 3, Q("1.15 mm")),
    Sketcher.Constraint("Diameter", 0, Q("16.125023 mm")),
    Sketcher.Constraint("DistanceX", -1, 1, 1, 2, Q("4.137708 mm")),
    Sketcher.Constraint("DistanceY", -1, 1, 1, 2, Q("2.388907 mm")),
])
pad2 = body3.newObject("PartDesign::Pad", "Pad001")
pad2.Profile = sketch6
pad2.Length = 21
pad2.Reversed = True

sketch7 = body3.newObject("Sketcher::SketchObject", "Sketch006")
sketch7.AttachmentSupport = (doc.getObject("XZ_Plane002"), [""])
sketch7.MapMode = "FlatFace"
sketch7.addGeometry(Part.Circle(Vector(0, 0, 0), Vector(0, 0, 1), 1.5), False)
sketch7.addConstraint([
    Sketcher.Constraint("Coincident", 0, 3, -1, 1),
    Sketcher.Constraint("Diameter", 0, Q("3 mm")),
])
doc.recompute()
hole3 = body3.newObject("PartDesign::Hole", "Hole002")
hole3.Profile = sketch7
hole3.ThreadType = "None"
hole3.Diameter = 3
hole3.DepthType = "ThroughAll"

doc.recompute()
